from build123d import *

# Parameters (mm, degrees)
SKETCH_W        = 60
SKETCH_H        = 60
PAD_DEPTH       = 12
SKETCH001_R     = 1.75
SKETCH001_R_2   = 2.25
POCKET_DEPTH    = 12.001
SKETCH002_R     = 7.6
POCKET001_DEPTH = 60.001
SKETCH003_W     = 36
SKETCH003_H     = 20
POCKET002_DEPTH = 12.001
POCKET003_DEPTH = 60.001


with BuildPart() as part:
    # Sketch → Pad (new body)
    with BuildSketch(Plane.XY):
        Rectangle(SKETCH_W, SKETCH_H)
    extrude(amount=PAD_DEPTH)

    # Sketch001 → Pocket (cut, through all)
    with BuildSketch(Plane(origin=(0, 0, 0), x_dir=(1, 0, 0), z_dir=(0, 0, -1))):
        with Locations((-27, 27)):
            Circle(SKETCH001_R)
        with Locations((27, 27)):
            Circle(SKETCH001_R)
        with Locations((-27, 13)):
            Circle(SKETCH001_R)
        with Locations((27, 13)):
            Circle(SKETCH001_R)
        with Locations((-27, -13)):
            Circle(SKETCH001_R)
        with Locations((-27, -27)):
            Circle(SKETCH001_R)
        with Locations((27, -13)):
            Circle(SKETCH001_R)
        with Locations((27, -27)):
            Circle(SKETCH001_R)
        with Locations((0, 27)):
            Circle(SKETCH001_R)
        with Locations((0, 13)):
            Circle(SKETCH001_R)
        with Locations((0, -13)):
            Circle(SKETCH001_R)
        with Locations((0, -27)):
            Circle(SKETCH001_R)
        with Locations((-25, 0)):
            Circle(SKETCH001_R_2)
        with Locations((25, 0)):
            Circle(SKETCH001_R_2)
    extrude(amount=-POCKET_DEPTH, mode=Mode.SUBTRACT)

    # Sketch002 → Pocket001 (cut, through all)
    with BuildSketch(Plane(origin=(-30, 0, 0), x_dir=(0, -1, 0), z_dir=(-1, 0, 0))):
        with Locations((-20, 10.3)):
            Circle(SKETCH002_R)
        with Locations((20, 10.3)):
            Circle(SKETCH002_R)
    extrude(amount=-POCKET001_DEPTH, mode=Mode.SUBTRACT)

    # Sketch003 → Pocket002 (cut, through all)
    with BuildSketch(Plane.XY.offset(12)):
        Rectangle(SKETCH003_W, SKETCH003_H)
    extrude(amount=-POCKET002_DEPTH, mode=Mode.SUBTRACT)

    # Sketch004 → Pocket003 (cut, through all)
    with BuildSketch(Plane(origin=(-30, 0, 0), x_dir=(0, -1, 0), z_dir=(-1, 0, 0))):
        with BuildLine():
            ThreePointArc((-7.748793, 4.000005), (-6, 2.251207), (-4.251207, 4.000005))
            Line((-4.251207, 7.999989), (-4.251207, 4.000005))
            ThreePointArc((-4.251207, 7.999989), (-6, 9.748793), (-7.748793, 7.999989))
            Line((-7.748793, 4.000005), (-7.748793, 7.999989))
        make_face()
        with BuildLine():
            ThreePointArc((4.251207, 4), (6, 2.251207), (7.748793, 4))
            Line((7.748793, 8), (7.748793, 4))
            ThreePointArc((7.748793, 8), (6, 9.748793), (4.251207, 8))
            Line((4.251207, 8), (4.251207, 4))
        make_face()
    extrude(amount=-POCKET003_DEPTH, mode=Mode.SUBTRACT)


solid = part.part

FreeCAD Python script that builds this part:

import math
import FreeCAD as App
import Part
import Sketcher

V = App.Vector


def add_polygon(sketch, points):
    """Adds a closed chain of lines whose ends are joined by coincident constraints."""
    first, n = sketch.GeometryCount, len(points)
    for a, b in zip(points, points[1:] + points[:1]):
        sketch.addGeometry(Part.LineSegment(App.Vector(*a, 0), App.Vector(*b, 0)), False)
    for i in range(n):
        sketch.addConstraint(Sketcher.Constraint("Coincident", first + i, 2, first + (i + 1) % n, 1))

doc = App.newDocument("Part")
params = doc.addObject("Spreadsheet::Sheet", "Params")
for row, (alias, value) in enumerate([
    ("sketch1_width", "60 mm"),
    ("pad1_length", "12 mm"),
    ("sketch2_diameter", "3.5 mm"),
    ("sketch2_diameter2", "4.5 mm"),
    ("sketch3_diameter", "15.2 mm"),
    ("sketch4_width", "36 mm"),
    ("sketch4_height", "20 mm"),
    ("sketch5_height", "4 mm"),
], start=1):
    params.set(f"A{row}", alias)
    params.set(f"B{row}", "=" + value)
    params.setAlias(f"B{row}", alias)

body = doc.addObject("PartDesign::Body", "Body")

# Sketch on XY plane
sketch1 = body.newObject("Sketcher::SketchObject", "Sketch")
sketch1.AttachmentSupport = (doc.getObject("XY_Plane"), [""])
sketch1.MapMode = "FlatFace"
add_polygon(sketch1, [(-30, 30), (-30, -30), (30, -30), (30, 30)])  # lines 0-3
sketch1.addConstraint(Sketcher.Constraint("Vertical", 0))
sketch1.addConstraint(Sketcher.Constraint("Horizontal", 1))
sketch1.addConstraint(Sketcher.Constraint("Vertical", 2))
sketch1.addConstraint(Sketcher.Constraint("Horizontal", 3))
sketch1.addConstraint(Sketcher.Constraint("Symmetric", 0, 2, 2, 2, -1, 1))
sketch1.addConstraint(Sketcher.Constraint("Equal", 3, 0))
sketch1.addConstraint(Sketcher.Constraint("DistanceX", 1, 1, 1, 2, 60.0))
sketch1.setExpression("Constraints[10]", "Params.sketch1_width")
pad1 = body.newObject("PartDesign::Pad", "Pad")
pad1.Profile = sketch1
pad1.setExpression("Length", "Params.pad1_length")

# Sketch on XY plane
sketch2 = body.newObject("Sketcher::SketchObject", "Sketch001")
sketch2.AttachmentSupport = (doc.getObject("XY_Plane"), [""])
sketch2.MapMode = "FlatFace"
sketch2.addGeometry(Part.Circle(V(-27, -27, 0), V(0, 0, 1), 1.8), False)
sketch2.addGeometry(Part.Circle(V(27, -27, 0), V(0, 0, 1), 1.8), False)
sketch2.addGeometry(Part.Circle(V(-27, -13, 0), V(0, 0, 1), 1.8), False)
sketch2.addGeometry(Part.Circle(V(27, -13, 0), V(0, 0, 1), 1.8), False)
sketch2.addGeometry(Part.Circle(V(-27, 13, 0), V(0, 0, 1), 1.8), False)
sketch2.addGeometry(Part.Circle(V(-27, 27, 0), V(0, 0, 1), 1.8), False)
sketch2.addGeometry(Part.Circle(V(27, 13, 0), V(0, 0, 1), 1.8), False)
sketch2.addGeometry(Part.Circle(V(27, 27, 0), V(0, 0, 1), 1.8), False)
sketch2.addGeometry(Part.Circle(V(0, -27, 0), V(0, 0, 1), 1.8), False)
sketch2.addGeometry(Part.Circle(V(0, -13, 0), V(0, 0, 1), 1.8), False)
sketch2.addGeometry(Part.Circle(V(0, 13, 0), V(0, 0, 1), 1.8), False)
sketch2.addGeometry(Part.Circle(V(0, 27, 0), V(0, 0, 1), 1.8), False)
sketch2.addGeometry(Part.Circle(V(-25, 0, 0), V(0, 0, 1), 2.2), False)
sketch2.addGeometry(Part.Circle(V(25, 0, 0), V(0, 0, 1), 2.2), False)
sketch2.addConstraint(Sketcher.Constraint("Equal", 0, 1))
sketch2.addConstraint(Sketcher.Constraint("Equal", 1, 2))
sketch2.addConstraint(Sketcher.Constraint("Equal", 2, 3))
sketch2.addConstraint(Sketcher.Constraint("Equal", 3, 4))
sketch2.addConstraint(Sketcher.Constraint("Equal", 4, 5))
sketch2.addConstraint(Sketcher.Constraint("Equal", 5, 6))
sketch2.addConstraint(Sketcher.Constraint("Equal", 6, 7))
sketch2.addConstraint(Sketcher.Constraint("Equal", 7, 8))
sketch2.addConstraint(Sketcher.Constraint("Equal", 8, 9))
sketch2.addConstraint(Sketcher.Constraint("Equal", 9, 10))
sketch2.addConstraint(Sketcher.Constraint("Equal", 10, 11))
sketch2.addConstraint(Sketcher.Constraint("Equal", 12, 13))
sketch2.addConstraint(Sketcher.Constraint("Symmetric", 3, 3, 4, 3, -1, 1))
sketch2.addConstraint(Sketcher.Constraint("Symmetric", 1, 3, 5, 3, -1, 1))
sketch2.addConstraint(Sketcher.Constraint("Symmetric", 2, 3, 6, 3, -1, 1))
sketch2.addConstraint(Sketcher.Constraint("Symmetric", 0, 3, 7, 3, -1, 1))
sketch2.addConstraint(Sketcher.Constraint("Symmetric", 9, 3, 10, 3, -1, 1))
sketch2.addConstraint(Sketcher.Constraint("Symmetric", 8, 3, 11, 3, -1, 1))
sketch2.addConstraint(Sketcher.Constraint("Symmetric", 12, 3, 13, 3, -1, 1))
sketch2.addConstraint(Sketcher.Constraint("Symmetric", 0, 3, 1, 3, -2))
sketch2.addConstraint(Sketcher.Constraint("Symmetric", 2, 3, 3, 3, -2))
sketch2.addConstraint(Sketcher.Constraint("PointOnObject", 8, 3, -2))
sketch2.addConstraint(Sketcher.Constraint("PointOnObject", 9, 3, -2))
sketch2.addConstraint(Sketcher.Constraint("PointOnObject", 12, 3, -1))
sketch2.addConstraint(Sketcher.Constraint("Horizontal", 1, 3, 8, 3))
sketch2.addConstraint(Sketcher.Constraint("Horizontal", 3, 3, 9, 3))
sketch2.addConstraint(Sketcher.Constraint("Vertical", 0, 3, 2, 3))
sketch2.addConstraint(Sketcher.Constraint("Diameter", 0, 3.5))
sketch2.addConstraint(Sketcher.Constraint("Diameter", 12, 4.5))
sketch2.addConstraint(Sketcher.Constraint("DistanceX", 0, 3, -1, 1, 27.0))
sketch2.addConstraint(Sketcher.Constraint("DistanceY", 0, 3, -1, 1, 27.0))
sketch2.addConstraint(Sketcher.Constraint("DistanceY", 2, 3, -1, 1, 13.0))
sketch2.addConstraint(Sketcher.Constraint("DistanceX", 12, 3, -1, 1, 25.0))
sketch2.setExpression("Constraints[27]", "Params.sketch2_diameter")
sketch2.setExpression("Constraints[28]", "Params.sketch2_diameter2")
pocket1 = body.newObject("PartDesign::Pocket", "Pocket")
pocket1.Profile = sketch2
pocket1.Type = "ThroughAll"
pocket1.Reversed = True

# Sketch on YZ plane
sketch3 = body.newObject("Sketcher::SketchObject", "Sketch002")
sketch3.AttachmentSupport = (doc.getObject("YZ_Plane"), [""])
sketch3.MapMode = "FlatFace"
sketch3.AttachmentOffset = App.Placement(V(0, 0, -30), App.Rotation())
sketch3.addGeometry(Part.Circle(V(20, 10, 0), V(0, 0, 1), 8), False)
sketch3.addGeometry(Part.Circle(V(-20, 10, 0), V(0, 0, 1), 8), False)
sketch3.addConstraint(Sketcher.Constraint("Equal", 0, 1))
sketch3.addConstraint(Sketcher.Constraint("Symmetric", 0, 3, 1, 3, -2))
sketch3.addConstraint(Sketcher.Constraint("Diameter", 0, 15.2))
sketch3.addConstraint(Sketcher.Constraint("DistanceX", -1, 1, 0, 3, 20.0))
sketch3.addConstraint(Sketcher.Constraint("DistanceY", -1, 1, 0, 3, 10.3))
sketch3.setExpression("Constraints[2]", "Params.sketch3_diameter")
pocket2 = body.newObject("PartDesign::Pocket", "Pocket001")
pocket2.Profile = sketch3
pocket2.Type = "ThroughAll"
pocket2.Reversed = True

# Sketch on XY plane
sketch4 = body.newObject("Sketcher::SketchObject", "Sketch003")
sketch4.AttachmentSupport = (doc.getObject("XY_Plane"), [""])
sketch4.MapMode = "FlatFace"
sketch4.AttachmentOffset = App.Placement(V(0, 0, 12), App.Rotation())
add_polygon(sketch4, [(-18, 10), (-18, -10), (18, -10), (18, 10)])  # lines 0-3
sketch4.addConstraint(Sketcher.Constraint("Vertical", 0))
sketch4.addConstraint(Sketcher.Constraint("Horizontal", 1))
sketch4.addConstraint(Sketcher.Constraint("Vertical", 2))
sketch4.addConstraint(Sketcher.Constraint("Horizontal", 3))
sketch4.addConstraint(Sketcher.Constraint("Symmetric", 0, 2, 2, 2, -1, 1))
sketch4.addConstraint(Sketcher.Constraint("DistanceX", 1, 1, 1, 2, 36.0))
sketch4.addConstraint(Sketcher.Constraint("DistanceY", 0, 2, 0, 1, 20.0))
sketch4.setExpression("Constraints[9]", "Params.sketch4_width")
sketch4.setExpression("Constraints[10]", "Params.sketch4_height")
pocket3 = body.newObject("PartDesign::Pocket", "Pocket002")
pocket3.Profile = sketch4
pocket3.Type = "ThroughAll"

# Sketch on YZ plane
sketch5 = body.newObject("Sketcher::SketchObject", "Sketch004")
sketch5.AttachmentSupport = (doc.getObject("YZ_Plane"), [""])
sketch5.MapMode = "FlatFace"
sketch5.AttachmentOffset = App.Placement(V(0, 0, -30), App.Rotation())
sketch5.addGeometry(Part.ArcOfCircle(Part.Circle(V(6, 4, 0), V(0, 0, 1), 1.7), math.radians(180), math.radians(360)), False)
sketch5.addGeometry(Part.LineSegment(V(4.3, 4, 0), V(4.3, 8, 0)), False)
sketch5.addGeometry(Part.ArcOfCircle(Part.Circle(V(6, 8, 0), V(0, 0, 1), 1.7), math.radians(0), math.radians(180)), False)
sketch5.addGeometry(Part.LineSegment(V(7.7, 8, 0), V(7.7, 4, 0)), False)
sketch5.addGeometry(Part.ArcOfCircle(Part.Circle(V(-6, 4, 0), V(0, 0, 1), 1.7), math.radians(180), math.radians(360)), False)
sketch5.addGeometry(Part.LineSegment(V(-7.7, 4, 0), V(-7.7, 8, 0)), False)
sketch5.addGeometry(Part.ArcOfCircle(Part.Circle(V(-6, 8, 0), V(0, 0, 1), 1.7), math.radians(0), math.radians(180)), False)
sketch5.addGeometry(Part.LineSegment(V(-4.3, 8, 0), V(-4.3, 4, 0)), False)
sketch5.addConstraint(Sketcher.Constraint("Coincident", 0, 1, 1, 1))
sketch5.addConstraint(Sketcher.Constraint("Coincident", 1, 2, 2, 2))
sketch5.addConstraint(Sketcher.Constraint("Coincident", 2, 1, 3, 1))
sketch5.addConstraint(Sketcher.Constraint("Coincident", 3, 2, 0, 2))
sketch5.addConstraint(Sketcher.Constraint("Tangent", 4, 1, 5, 1))
sketch5.addConstraint(Sketcher.Constraint("Tangent", 5, 2, 6, 2))
sketch5.addConstraint(Sketcher.Constraint("Tangent", 6, 1, 7, 1))
sketch5.addConstraint(Sketcher.Constraint("Tangent", 7, 2, 4, 2))
sketch5.addConstraint(Sketcher.Constraint("Vertical", 1))
sketch5.addConstraint(Sketcher.Constraint("Vertical", 3))
sketch5.addConstraint(Sketcher.Constraint("Vertical", 5))
sketch5.addConstraint(Sketcher.Constraint("Vertical", 7))
sketch5.addConstraint(Sketcher.Constraint("Equal", 2, 4))
sketch5.addConstraint(Sketcher.Constraint("Symmetric", 0, 3, 4, 3, -2))
sketch5.addConstraint(Sketcher.Constraint("Horizontal", 2, 3, 6, 3))
sketch5.addConstraint(Sketcher.Constraint("Horizontal", 1, 2, 2, 1))
sketch5.addConstraint(Sketcher.Constraint("Horizontal", 0, 1, 3, 2))
sketch5.addConstraint(Sketcher.Constraint("DistanceY", 5, 1, 5, 2, 4.0))
sketch5.addConstraint(Sketcher.Constraint("DistanceX", -1, 1, 0, 3, 6.0))
sketch5.addConstraint(Sketcher.Constraint("DistanceY", -1, 1, 0, 3, 4.0))
sketch5.addConstraint(Sketcher.Constraint("Radius", 0, 1.748793))
sketch5.addConstraint(Sketcher.Constraint("DistanceY", 1, 1, 1, 2, 3.999984))
sketch5.addConstraint(Sketcher.Constraint("DistanceY", -1, 1, 1, 2, 7.999989))
sketch5.setExpression("Constraints[17]", "Params.sketch5_height")
pocket4 = body.newObject("PartDesign::Pocket", "Pocket003")
pocket4.Profile = sketch5
pocket4.Type = "ThroughAll"
pocket4.Reversed = True

doc.recompute()
